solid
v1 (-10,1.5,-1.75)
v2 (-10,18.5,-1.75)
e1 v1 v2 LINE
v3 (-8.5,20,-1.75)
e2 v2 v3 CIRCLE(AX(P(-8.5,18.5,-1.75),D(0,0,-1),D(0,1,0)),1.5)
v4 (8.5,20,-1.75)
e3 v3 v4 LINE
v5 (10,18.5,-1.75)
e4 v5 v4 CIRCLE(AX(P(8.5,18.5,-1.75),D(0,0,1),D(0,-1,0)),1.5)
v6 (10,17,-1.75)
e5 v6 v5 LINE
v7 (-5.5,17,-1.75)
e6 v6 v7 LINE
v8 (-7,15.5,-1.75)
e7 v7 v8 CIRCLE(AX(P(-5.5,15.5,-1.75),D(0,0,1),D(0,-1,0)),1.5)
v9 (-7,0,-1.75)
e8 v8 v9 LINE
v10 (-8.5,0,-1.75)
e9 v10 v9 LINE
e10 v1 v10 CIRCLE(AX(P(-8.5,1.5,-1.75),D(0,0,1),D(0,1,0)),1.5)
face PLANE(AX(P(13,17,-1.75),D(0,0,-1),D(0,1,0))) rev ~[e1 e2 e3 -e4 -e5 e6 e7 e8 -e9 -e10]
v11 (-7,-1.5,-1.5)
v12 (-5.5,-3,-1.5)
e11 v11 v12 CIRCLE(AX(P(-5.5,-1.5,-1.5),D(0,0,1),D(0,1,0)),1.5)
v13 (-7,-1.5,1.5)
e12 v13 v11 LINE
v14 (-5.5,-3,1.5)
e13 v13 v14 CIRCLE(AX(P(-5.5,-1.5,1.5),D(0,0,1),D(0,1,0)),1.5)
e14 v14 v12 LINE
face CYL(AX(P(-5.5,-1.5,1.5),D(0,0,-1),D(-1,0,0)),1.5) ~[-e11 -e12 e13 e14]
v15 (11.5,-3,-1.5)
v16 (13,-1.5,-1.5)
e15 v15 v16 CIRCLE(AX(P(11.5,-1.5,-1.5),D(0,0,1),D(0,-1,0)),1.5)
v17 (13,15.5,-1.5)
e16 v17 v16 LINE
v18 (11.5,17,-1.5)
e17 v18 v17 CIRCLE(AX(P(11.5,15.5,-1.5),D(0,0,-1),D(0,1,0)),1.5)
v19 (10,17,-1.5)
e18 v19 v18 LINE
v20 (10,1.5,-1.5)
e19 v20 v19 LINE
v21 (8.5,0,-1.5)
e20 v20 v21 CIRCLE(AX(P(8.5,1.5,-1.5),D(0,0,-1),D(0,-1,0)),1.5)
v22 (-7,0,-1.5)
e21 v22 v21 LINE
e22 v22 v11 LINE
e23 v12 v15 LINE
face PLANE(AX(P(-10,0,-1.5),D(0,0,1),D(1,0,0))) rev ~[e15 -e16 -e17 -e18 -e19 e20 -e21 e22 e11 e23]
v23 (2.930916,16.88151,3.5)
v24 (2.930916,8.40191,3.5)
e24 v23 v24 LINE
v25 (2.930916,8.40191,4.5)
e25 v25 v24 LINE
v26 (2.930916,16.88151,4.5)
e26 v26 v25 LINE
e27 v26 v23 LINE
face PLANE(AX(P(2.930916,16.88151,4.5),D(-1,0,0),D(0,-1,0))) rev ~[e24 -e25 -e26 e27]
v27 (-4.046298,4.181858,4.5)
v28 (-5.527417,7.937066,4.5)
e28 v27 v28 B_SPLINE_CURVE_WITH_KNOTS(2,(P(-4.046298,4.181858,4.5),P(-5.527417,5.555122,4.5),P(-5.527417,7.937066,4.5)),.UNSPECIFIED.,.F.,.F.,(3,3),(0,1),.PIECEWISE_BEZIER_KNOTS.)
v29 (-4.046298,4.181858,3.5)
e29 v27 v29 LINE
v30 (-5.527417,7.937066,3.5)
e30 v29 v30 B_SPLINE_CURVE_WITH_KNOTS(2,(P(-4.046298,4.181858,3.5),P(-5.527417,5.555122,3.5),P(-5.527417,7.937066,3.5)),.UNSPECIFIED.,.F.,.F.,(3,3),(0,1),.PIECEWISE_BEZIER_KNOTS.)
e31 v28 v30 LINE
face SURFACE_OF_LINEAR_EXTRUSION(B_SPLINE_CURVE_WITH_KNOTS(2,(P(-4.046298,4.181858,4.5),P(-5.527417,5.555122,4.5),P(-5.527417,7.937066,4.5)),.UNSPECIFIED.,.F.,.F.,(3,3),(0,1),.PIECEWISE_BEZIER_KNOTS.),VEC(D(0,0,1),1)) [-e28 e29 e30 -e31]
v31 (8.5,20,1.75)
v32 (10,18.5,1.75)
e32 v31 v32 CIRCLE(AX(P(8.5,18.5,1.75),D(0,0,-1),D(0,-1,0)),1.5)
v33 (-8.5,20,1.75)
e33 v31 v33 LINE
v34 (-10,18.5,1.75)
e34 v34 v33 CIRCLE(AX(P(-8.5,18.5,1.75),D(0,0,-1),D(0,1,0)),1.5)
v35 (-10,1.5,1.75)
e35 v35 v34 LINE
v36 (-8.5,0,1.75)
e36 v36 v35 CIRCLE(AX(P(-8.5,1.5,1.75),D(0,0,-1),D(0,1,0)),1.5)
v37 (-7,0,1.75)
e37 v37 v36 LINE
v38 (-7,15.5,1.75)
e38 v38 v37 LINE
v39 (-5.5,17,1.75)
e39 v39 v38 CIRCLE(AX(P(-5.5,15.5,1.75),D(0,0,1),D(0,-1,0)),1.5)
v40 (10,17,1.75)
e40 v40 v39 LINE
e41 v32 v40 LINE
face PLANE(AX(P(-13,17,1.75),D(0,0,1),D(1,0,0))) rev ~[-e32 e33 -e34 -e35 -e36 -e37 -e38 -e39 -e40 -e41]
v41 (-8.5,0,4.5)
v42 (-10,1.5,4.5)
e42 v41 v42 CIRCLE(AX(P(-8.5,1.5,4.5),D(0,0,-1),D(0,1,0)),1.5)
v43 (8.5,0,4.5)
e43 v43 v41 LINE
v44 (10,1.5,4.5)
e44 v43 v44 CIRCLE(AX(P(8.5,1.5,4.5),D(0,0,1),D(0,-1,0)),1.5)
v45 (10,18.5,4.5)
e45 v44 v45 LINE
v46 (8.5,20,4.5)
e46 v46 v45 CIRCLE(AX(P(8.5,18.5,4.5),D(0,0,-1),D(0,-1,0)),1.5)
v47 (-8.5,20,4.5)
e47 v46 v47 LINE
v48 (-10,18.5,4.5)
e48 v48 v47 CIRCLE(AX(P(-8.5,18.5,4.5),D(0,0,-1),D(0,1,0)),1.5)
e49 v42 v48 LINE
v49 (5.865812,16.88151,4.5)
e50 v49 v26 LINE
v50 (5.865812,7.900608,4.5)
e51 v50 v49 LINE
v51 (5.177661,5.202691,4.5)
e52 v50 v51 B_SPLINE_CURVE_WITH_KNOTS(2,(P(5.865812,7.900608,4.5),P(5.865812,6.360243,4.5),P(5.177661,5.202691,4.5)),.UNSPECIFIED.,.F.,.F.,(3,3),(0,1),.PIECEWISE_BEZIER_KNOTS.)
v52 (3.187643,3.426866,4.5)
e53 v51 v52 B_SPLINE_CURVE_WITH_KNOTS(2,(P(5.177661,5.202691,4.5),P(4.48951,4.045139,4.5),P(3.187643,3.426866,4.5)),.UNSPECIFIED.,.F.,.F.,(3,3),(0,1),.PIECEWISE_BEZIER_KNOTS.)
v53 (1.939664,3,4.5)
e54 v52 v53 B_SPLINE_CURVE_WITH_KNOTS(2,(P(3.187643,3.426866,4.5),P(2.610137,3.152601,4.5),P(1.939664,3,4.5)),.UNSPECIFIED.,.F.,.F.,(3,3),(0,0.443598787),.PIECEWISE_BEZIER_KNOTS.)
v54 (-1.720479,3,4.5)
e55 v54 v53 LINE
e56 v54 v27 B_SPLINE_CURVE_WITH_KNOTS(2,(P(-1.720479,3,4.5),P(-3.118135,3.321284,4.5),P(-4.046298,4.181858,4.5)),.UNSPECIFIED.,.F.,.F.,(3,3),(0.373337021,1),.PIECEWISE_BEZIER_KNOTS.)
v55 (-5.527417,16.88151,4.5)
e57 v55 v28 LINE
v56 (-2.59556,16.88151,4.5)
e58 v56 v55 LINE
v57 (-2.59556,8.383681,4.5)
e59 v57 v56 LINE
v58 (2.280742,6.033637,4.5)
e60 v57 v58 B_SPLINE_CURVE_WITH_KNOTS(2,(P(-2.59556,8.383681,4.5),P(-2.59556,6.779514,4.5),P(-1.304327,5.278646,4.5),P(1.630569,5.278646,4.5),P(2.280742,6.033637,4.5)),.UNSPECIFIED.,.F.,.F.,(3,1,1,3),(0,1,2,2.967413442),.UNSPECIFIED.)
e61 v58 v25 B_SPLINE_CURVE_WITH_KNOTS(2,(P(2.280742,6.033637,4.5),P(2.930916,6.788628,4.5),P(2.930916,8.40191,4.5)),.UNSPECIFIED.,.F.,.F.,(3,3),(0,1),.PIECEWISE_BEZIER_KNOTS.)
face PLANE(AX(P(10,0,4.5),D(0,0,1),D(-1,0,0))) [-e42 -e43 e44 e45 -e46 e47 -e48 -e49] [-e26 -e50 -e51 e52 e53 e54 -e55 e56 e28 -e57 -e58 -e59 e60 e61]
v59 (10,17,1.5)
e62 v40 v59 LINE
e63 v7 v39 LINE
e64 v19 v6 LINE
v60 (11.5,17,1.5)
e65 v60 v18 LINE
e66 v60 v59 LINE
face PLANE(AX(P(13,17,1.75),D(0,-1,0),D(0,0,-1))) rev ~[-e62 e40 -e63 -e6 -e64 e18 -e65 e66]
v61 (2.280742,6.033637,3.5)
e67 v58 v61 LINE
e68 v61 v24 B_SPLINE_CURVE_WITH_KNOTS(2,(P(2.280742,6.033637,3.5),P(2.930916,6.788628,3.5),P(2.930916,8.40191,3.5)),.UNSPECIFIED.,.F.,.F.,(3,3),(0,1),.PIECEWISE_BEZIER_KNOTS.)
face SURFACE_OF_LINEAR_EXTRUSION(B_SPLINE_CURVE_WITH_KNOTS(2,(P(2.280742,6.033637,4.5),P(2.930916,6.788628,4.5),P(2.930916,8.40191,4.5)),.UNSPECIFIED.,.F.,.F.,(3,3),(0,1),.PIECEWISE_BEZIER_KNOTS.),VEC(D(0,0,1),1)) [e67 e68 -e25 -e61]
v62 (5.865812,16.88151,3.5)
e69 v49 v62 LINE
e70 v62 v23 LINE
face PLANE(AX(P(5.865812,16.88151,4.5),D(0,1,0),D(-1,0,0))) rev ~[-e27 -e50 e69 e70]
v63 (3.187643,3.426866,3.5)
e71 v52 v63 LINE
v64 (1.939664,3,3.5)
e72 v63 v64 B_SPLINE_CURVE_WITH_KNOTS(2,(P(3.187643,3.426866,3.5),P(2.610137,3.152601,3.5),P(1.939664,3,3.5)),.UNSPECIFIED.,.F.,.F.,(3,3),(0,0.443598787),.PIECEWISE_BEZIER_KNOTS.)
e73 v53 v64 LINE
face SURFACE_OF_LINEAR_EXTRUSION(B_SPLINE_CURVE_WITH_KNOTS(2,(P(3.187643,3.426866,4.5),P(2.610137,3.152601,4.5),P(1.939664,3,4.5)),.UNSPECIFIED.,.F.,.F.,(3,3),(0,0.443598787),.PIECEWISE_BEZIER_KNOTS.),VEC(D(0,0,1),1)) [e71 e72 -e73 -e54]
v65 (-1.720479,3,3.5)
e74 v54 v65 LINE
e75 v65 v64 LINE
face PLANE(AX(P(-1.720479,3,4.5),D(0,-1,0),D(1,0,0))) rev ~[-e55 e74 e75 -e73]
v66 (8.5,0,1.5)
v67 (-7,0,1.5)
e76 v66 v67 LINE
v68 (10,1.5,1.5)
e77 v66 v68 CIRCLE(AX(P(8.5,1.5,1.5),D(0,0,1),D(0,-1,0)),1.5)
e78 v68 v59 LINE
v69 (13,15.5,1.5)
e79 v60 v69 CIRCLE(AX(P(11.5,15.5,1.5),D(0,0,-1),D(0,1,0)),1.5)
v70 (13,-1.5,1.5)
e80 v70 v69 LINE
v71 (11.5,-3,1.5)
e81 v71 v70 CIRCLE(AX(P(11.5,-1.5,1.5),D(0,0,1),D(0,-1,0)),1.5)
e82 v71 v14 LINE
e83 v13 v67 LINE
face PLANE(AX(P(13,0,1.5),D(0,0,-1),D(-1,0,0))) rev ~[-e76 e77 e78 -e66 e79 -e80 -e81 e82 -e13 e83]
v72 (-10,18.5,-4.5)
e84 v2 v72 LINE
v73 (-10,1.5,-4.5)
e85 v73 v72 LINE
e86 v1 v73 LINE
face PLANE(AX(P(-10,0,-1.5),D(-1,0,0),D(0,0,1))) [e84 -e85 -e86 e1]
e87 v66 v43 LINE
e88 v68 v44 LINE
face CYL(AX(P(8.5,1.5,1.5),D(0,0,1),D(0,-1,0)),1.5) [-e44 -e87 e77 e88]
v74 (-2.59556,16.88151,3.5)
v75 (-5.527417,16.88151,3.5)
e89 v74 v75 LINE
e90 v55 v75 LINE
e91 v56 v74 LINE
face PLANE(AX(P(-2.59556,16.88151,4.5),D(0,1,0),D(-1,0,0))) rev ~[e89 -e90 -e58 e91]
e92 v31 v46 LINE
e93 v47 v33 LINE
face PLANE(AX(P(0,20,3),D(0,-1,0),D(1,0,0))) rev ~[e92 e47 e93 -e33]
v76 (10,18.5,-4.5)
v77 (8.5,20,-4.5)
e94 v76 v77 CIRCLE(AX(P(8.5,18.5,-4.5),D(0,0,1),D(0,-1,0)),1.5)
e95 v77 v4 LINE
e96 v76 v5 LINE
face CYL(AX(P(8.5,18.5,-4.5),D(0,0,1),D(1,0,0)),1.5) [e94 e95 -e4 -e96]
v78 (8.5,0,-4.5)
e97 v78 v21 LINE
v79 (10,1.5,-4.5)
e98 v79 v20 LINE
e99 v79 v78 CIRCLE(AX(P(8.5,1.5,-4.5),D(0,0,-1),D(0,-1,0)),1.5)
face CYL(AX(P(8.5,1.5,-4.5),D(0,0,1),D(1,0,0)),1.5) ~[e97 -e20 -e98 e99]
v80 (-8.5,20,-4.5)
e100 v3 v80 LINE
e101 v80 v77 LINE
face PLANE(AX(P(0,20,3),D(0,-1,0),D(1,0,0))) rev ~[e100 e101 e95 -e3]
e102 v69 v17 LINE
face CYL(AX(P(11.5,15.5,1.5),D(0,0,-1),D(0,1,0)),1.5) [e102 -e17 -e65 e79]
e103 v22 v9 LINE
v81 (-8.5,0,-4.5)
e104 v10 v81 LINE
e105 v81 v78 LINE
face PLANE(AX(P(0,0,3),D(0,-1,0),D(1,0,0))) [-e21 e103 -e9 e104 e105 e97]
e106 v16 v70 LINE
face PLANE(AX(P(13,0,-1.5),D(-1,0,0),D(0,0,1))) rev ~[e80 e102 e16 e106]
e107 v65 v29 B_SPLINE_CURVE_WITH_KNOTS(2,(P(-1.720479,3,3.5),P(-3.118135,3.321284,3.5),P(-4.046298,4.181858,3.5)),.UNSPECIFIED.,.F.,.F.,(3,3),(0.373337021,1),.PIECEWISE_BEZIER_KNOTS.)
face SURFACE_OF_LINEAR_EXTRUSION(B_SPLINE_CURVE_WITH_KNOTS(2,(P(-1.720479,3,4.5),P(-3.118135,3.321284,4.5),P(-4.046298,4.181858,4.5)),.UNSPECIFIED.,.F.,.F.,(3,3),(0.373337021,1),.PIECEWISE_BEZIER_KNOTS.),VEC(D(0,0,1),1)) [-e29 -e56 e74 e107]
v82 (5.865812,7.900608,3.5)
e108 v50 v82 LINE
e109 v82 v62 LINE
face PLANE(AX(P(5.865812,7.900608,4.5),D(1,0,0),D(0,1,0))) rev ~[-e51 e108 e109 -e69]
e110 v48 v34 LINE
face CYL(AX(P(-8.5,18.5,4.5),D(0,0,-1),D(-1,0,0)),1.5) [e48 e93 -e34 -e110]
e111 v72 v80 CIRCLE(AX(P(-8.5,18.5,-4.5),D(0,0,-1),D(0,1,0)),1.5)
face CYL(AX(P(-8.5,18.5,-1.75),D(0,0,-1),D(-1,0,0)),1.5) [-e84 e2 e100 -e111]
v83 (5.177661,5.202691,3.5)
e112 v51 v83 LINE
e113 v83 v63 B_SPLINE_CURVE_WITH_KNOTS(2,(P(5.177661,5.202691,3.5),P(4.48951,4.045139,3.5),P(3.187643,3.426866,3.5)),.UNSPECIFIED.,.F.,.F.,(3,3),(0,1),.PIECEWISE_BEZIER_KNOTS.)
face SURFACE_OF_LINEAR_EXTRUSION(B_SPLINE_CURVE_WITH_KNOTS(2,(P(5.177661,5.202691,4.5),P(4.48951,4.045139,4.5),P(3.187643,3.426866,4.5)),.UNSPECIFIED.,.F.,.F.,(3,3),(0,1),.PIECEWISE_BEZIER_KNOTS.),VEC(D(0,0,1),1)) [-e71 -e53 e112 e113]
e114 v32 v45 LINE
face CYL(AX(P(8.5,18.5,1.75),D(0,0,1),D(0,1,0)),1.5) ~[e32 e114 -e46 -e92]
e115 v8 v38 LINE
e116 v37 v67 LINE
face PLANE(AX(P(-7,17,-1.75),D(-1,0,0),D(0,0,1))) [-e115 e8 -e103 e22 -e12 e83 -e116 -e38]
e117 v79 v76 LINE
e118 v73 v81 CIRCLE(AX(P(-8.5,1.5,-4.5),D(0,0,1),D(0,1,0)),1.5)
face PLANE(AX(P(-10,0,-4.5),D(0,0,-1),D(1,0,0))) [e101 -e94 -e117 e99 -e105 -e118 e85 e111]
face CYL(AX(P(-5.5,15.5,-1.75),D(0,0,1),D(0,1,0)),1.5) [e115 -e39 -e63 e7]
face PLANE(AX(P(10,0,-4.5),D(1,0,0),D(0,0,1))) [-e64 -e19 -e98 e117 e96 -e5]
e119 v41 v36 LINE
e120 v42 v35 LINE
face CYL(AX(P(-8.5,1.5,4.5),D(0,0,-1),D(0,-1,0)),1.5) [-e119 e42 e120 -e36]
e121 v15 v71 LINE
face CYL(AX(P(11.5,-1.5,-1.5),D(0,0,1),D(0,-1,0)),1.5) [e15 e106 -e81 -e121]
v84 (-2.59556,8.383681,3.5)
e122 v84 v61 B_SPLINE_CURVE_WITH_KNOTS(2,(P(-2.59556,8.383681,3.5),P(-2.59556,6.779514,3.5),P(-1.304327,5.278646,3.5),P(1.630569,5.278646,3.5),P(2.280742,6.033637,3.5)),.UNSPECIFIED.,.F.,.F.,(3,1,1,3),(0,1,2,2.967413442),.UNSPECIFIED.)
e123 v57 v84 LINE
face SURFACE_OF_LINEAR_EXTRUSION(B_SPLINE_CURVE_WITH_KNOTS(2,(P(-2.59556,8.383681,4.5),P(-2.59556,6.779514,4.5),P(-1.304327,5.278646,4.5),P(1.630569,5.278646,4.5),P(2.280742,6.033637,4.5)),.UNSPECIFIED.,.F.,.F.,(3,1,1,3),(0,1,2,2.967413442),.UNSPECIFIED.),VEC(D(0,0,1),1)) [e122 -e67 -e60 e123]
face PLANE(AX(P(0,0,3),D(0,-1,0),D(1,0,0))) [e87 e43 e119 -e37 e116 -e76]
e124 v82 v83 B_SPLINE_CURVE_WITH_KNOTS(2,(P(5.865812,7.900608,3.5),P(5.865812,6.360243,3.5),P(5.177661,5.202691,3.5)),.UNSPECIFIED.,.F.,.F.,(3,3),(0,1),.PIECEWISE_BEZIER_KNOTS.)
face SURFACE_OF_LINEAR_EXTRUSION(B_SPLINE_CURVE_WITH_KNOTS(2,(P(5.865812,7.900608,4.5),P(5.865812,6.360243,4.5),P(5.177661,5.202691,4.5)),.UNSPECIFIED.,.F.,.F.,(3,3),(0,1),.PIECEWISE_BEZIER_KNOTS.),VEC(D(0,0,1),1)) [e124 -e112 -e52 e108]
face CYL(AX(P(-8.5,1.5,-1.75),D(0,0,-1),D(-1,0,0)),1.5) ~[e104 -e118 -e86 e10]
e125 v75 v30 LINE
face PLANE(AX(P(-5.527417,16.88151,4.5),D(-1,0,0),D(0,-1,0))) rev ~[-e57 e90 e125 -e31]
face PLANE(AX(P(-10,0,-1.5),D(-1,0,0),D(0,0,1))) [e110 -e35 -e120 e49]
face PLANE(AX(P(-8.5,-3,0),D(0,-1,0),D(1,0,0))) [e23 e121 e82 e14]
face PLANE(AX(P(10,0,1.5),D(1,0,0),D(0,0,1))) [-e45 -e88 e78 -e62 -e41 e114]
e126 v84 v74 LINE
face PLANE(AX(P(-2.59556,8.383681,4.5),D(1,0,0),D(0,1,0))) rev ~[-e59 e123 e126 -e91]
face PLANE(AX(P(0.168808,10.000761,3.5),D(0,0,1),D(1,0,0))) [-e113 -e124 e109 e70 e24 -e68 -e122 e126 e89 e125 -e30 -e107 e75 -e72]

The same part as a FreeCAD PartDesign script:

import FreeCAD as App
import Part
import Sketcher


def edges_at(feature, points):
    """Names of the edges that pass closest to the given points."""
    edges = feature.Shape.Edges
    near = lambda p: min(range(len(edges)), key=lambda i: edges[i].distToShape(Part.Vertex(*p))[0])
    return sorted({f"Edge{near(p) + 1}" for p in points})


def add_polygon(sketch, points):
    """Adds a closed chain of lines whose ends are joined by coincident constraints."""
    first, n = sketch.GeometryCount, len(points)
    for a, b in zip(points, points[1:] + points[:1]):
        sketch.addGeometry(Part.LineSegment(App.Vector(*a, 0), App.Vector(*b, 0)), False)
    for i in range(n):
        sketch.addConstraint(Sketcher.Constraint("Coincident", first + i, 2, first + (i + 1) % n, 1))

doc = App.newDocument("Part")
body = doc.addObject("PartDesign::Body", "Body")

# Sketch on XZ plane
sketch1 = body.newObject("Sketcher::SketchObject", "Sketch")
sketch1.AttachmentSupport = (doc.getObject("XZ_Plane"), [""])
sketch1.MapMode = "FlatFace"
add_polygon(sketch1, [(10, 1.5), (10, 4.5), (-10, 4.5), (-10, -4.5), (10, -4.5), (10, -1.5), (13, -1.5), (13, 1.5)])  # lines 0-7
sketch1.addConstraint([
    Sketcher.Constraint("Vertical", 0),
    Sketcher.Constraint("Horizontal", 1),
    Sketcher.Constraint("Vertical", 2),
    Sketcher.Constraint("Horizontal", 3),
    Sketcher.Constraint("Vertical", 4),
    Sketcher.Constraint("Horizontal", 5),
    Sketcher.Constraint("Vertical", 6),
    Sketcher.Constraint("Horizontal", 7),
    Sketcher.Constraint("Symmetric", 0, 2, 2, 2, -1, 1),
    Sketcher.Constraint("Symmetric", 4, 2, 7, 2, -1),
    Sketcher.Constraint("Equal", 7, 0),
    Sketcher.Constraint("Equal", 4, 6),
    Sketcher.Constraint("DistanceX", 1, 2, 1, 1, 20.0),
    Sketcher.Constraint("DistanceX", 5, 1, 5, 2, 3.0),
])
pad1 = body.newObject("PartDesign::Pad", "Pad")
pad1.Profile = sketch1
pad1.Length = 20
pad1.Reversed = True

# Sketch on XZ plane
sketch2 = body.newObject("Sketcher::SketchObject", "Sketch001")
sketch2.AttachmentSupport = (doc.getObject("XZ_Plane"), [""])
sketch2.MapMode = "FlatFace"
add_polygon(sketch2, [(-10, 1.5), (-10, -1.5), (13, -1.5), (13, 1.5)])  # lines 0-3
sketch2.addConstraint([
    Sketcher.Constraint("Vertical", 0),
    Sketcher.Constraint("Horizontal", 1),
    Sketcher.Constraint("Vertical", 2),
    Sketcher.Constraint("Horizontal", 3),
    Sketcher.Constraint("DistanceX", 1, 1, 1, 2, 23.0),
    Sketcher.Constraint("DistanceY", 0, 2, 0, 1, 3.0),
    Sketcher.Constraint("DistanceX", 0, 2, -1, 1, 10.0),
    Sketcher.Constraint("DistanceY", 0, 2, -1, 1, 1.5),
])
pad2 = body.newObject("PartDesign::Pad", "Pad001")
pad2.Profile = sketch2
pad2.Length = 3

# Sketch on YZ plane
sketch3 = body.newObject("Sketcher::SketchObject", "Sketch002")
sketch3.AttachmentSupport = (doc.getObject("YZ_Plane"), [""])
sketch3.MapMode = "FlatFace"
sketch3.AttachmentOffset = App.Placement(App.Vector(0, 0, 13), App.Rotation())
add_polygon(sketch3, [(23, -1.8), (23, 1.8), (17, 1.8), (17, -1.8)])  # lines 0-3
sketch3.addConstraint([
    Sketcher.Constraint("Vertical", 0),
    Sketcher.Constraint("Horizontal", 1),
    Sketcher.Constraint("Vertical", 2),
    Sketcher.Constraint("Horizontal", 3),
    Sketcher.Constraint("DistanceX", 1, 2, 1, 1, 6.0),
    Sketcher.Constraint("DistanceY", 0, 1, 0, 2, 3.5),
    Sketcher.Constraint("DistanceX", -1, 1, 0, 2, 23.0),
    Sketcher.Constraint("DistanceY", -1, 1, 0, 2, 1.75),
])
pocket1 = body.newObject("PartDesign::Pocket", "Pocket")
pocket1.Profile = sketch3
pocket1.Length = 100

# Sketch on XZ plane
sketch4 = body.newObject("Sketcher::SketchObject", "Sketch003")
sketch4.AttachmentSupport = (doc.getObject("XZ_Plane"), [""])
sketch4.MapMode = "FlatFace"
sketch4.AttachmentOffset = App.Placement(App.Vector(0, 0, -17), App.Rotation())
add_polygon(sketch4, [(-13, -1.8), (-13, 1.8), (-7, 1.8), (-7, -1.8)])  # lines 0-3
sketch4.addConstraint([
    Sketcher.Constraint("Vertical", 0),
    Sketcher.Constraint("Horizontal", 1),
    Sketcher.Constraint("Vertical", 2),
    Sketcher.Constraint("Horizontal", 3),
    Sketcher.Constraint("DistanceX", 1, 1, 1, 2, 6.0),
    Sketcher.Constraint("DistanceY", 0, 1, 0, 2, 3.5),
    Sketcher.Constraint("DistanceX", 0, 2, -1, 1, 13.0),
    Sketcher.Constraint("DistanceY", -1, 1, 0, 2, 1.75),
])
pocket2 = body.newObject("PartDesign::Pocket", "Pocket001")
pocket2.Profile = sketch4
pocket2.Length = 100
pocket2.Reversed = True
doc.recompute()

fillet = body.newObject("PartDesign::Fillet", "Fillet")
fillet.Base = (pocket2, edges_at(pocket2, [
    (-7, -3, 0),
    (13, -3, 0),
    (10, 0, 3),
    (10, 0, -3),
    (-10, 0, -3.125),
    (-10, 0, 3.125),
    (-7, 17, 0),
    (-10, 20, 3.125),
    (-10, 20, -3.125),
    (13, 17, 0),
    (10, 20, 3.125),
    (10, 20, -3.125),
]))
fillet.Radius = 1.5

# Sketch on XY plane
sketch5 = body.newObject("Sketcher::SketchObject", "Sketch004")
sketch5.AttachmentSupport = (doc.getObject("XY_Plane"), [""])
sketch5.MapMode = "FlatFace"
sketch5.AttachmentOffset = App.Placement(App.Vector(0, 0, 4.5), App.Rotation())
sketch5.addGeometry([
    Part.LineSegment(App.Vector(-1.720479, 3, 0), App.Vector(1.939664, 3, 0)),  # 0
    Part.BSplineCurve([App.Vector(3.187643, 3.426866, 0), App.Vector(2.610137, 3.152601, 0), App.Vector(1.939664, 3, 0)], [3, 3], [0, 0.443598787], False, 2, [1, 1, 1], False),  # 1
    Part.BSplineCurve([App.Vector(5.177661, 5.202691, 0), App.Vector(4.48951, 4.045139, 0), App.Vector(3.187643, 3.426866, 0)], [3, 3], [0, 1], False, 2, [1, 1, 1], False),  # 2
    Part.BSplineCurve([App.Vector(5.865812, 7.900608, 0), App.Vector(5.865812, 6.360243, 0), App.Vector(5.177661, 5.202691, 0)], [3, 3], [0, 1], False, 2, [1, 1, 1], False),  # 3
    Part.LineSegment(App.Vector(5.865812, 7.900608, 0), App.Vector(5.865812, 16.88151, 0)),  # 4
    Part.LineSegment(App.Vector(5.865812, 16.88151, 0), App.Vector(2.930916, 16.88151, 0)),  # 5
    Part.LineSegment(App.Vector(2.930916, 16.88151, 0), App.Vector(2.930916, 8.40191, 0)),  # 6
    Part.BSplineCurve([App.Vector(2.280742, 6.033637, 0), App.Vector(2.930916, 6.788628, 0), App.Vector(2.930916, 8.40191, 0)], [3, 3], [0, 1], False, 2, [1, 1, 1], False),  # 7
    Part.BSplineCurve([App.Vector(-2.59556, 8.383681, 0), App.Vector(-2.59556, 6.779514, 0), App.Vector(-1.304327, 5.278646, 0), App.Vector(1.630569, 5.278646, 0), App.Vector(2.280742, 6.033637, 0)], [3, 1, 1, 3], [0, 1, 2, 2.967413442], False, 2, [1, 1, 1, 1, 1], False),  # 8
    Part.LineSegment(App.Vector(-2.59556, 8.383681, 0), App.Vector(-2.59556, 16.88151, 0)),  # 9
    Part.LineSegment(App.Vector(-2.59556, 16.88151, 0), App.Vector(-5.527417, 16.88151, 0)),  # 10
    Part.LineSegment(App.Vector(-5.527417, 16.88151, 0), App.Vector(-5.527417, 7.937066, 0)),  # 11
    Part.BSplineCurve([App.Vector(-4.046298, 4.181858, 0), App.Vector(-5.527417, 5.555122, 0), App.Vector(-5.527417, 7.937066, 0)], [3, 3], [0, 1], False, 2, [1, 1, 1], False),  # 12
    Part.BSplineCurve([App.Vector(-1.720479, 3, 0), App.Vector(-3.118135, 3.321284, 0), App.Vector(-4.046298, 4.181858, 0)], [3, 3], [0.373337021, 1], False, 2, [1, 1, 1], False),  # 13
], False)
sketch5.addConstraint([
    Sketcher.Constraint("Block", 1),
    Sketcher.Constraint("Block", 2),
    Sketcher.Constraint("Block", 3),
    Sketcher.Constraint("Block", 7),
    Sketcher.Constraint("Block", 8),
    Sketcher.Constraint("Block", 12),
    Sketcher.Constraint("Block", 13),
    Sketcher.Constraint("Coincident", 0, 2, 1, 2),
    Sketcher.Constraint("Coincident", 3, 1, 4, 1),
    Sketcher.Constraint("Coincident", 4, 2, 5, 1),
    Sketcher.Constraint("Coincident", 5, 2, 6, 1),
    Sketcher.Constraint("Coincident", 6, 2, 7, 2),
    Sketcher.Constraint("Coincident", 8, 1, 9, 1),
    Sketcher.Constraint("Coincident", 9, 2, 10, 1),
    Sketcher.Constraint("Coincident", 10, 2, 11, 1),
    Sketcher.Constraint("Coincident", 11, 2, 12, 2),
    Sketcher.Constraint("Coincident", 13, 1, 0, 1),
    Sketcher.Constraint("Vertical", 4),
    Sketcher.Constraint("Horizontal", 5),
    Sketcher.Constraint("Vertical", 6),
    Sketcher.Constraint("Vertical", 9),
    Sketcher.Constraint("Horizontal", 10),
    Sketcher.Constraint("Vertical", 11),
    Sketcher.Constraint("Horizontal", 5, 2, 9, 2),
    Sketcher.Constraint("DistanceY", 6, 2, 6, 1, 8.479601),
])
pocket3 = body.newObject("PartDesign::Pocket", "Pocket002")
pocket3.Profile = sketch5
pocket3.Length = 1

doc.recompute()
